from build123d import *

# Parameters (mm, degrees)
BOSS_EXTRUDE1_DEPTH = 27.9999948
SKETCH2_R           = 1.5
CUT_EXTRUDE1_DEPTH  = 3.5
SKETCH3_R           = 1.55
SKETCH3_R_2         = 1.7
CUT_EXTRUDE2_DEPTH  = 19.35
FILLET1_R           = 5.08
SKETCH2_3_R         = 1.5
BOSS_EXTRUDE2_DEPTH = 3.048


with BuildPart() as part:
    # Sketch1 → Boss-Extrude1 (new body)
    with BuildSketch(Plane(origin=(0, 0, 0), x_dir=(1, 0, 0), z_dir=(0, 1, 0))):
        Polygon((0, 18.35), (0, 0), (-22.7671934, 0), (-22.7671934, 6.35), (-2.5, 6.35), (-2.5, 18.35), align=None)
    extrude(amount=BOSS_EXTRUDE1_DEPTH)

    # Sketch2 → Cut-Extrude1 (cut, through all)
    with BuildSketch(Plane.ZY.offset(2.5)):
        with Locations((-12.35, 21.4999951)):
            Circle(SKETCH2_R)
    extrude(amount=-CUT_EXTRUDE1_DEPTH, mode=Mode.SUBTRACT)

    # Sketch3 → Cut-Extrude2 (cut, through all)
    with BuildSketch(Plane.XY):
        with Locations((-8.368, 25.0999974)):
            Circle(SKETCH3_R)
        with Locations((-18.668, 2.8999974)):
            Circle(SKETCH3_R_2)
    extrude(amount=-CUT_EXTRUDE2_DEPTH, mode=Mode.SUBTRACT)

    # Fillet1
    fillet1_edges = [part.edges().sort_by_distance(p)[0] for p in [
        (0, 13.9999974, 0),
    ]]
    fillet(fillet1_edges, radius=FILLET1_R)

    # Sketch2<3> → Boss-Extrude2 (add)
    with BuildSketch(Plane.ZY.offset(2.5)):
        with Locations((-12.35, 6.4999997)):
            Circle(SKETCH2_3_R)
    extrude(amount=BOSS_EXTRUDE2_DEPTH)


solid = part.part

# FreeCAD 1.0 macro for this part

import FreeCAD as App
import Part
import Sketcher
from FreeCAD import Vector
Q = App.Units.Quantity


def edges_at(feature, points):
    """Names of the edges that pass closest to the given points."""
    edges = feature.Shape.Edges
    near = lambda p: min(range(len(edges)), key=lambda i: edges[i].distToShape(Part.Vertex(*p))[0])
    return sorted({f"Edge{near(p) + 1}" for p in points})


def add_polygon(sketch, points):
    """Adds a closed chain of lines whose ends are joined by coincident constraints."""
    first, n = sketch.GeometryCount, len(points)
    for a, b in zip(points, points[1:] + points[:1]):
        sketch.addGeometry(Part.LineSegment(App.Vector(*a, 0), App.Vector(*b, 0)), False)
    for i in range(n):
        sketch.addConstraint(Sketcher.Constraint("Coincident", first + i, 2, first + (i + 1) % n, 1))

doc = App.newDocument("Part")
body = doc.addObject("PartDesign::Body", "Body")

# Sketch on XZ plane
sketch1 = body.newObject("Sketcher::SketchObject", "Sketch")
sketch1.AttachmentSupport = (doc.getObject("XZ_Plane"), [""])
sketch1.MapMode = "FlatFace"
add_polygon(sketch1, [(0, 0), (0, -18.4), (-2.5, -18.4), (-2.5, -6.3), (-22.8, -6.3), (-22.8, 0)])  # lines 0-5
sketch1.addConstraint([
    Sketcher.Constraint("Vertical", 0),
    Sketcher.Constraint("Horizontal", 1),
    Sketcher.Constraint("Vertical", 2),
    Sketcher.Constraint("Horizontal", 3),
    Sketcher.Constraint("Vertical", 4),
    Sketcher.Constraint("Horizontal", 5),
    Sketcher.Constraint("Coincident", 5, 2, -1, 1),
    Sketcher.Constraint("DistanceY", 2, 1, 2, 2, Q("12 mm")),
    Sketcher.Constraint("DistanceX", 1, 2, 1, 1, Q("2.5 mm")),
    Sketcher.Constraint("DistanceY", 0, 2, 0, 1, Q("18.35 mm")),
    Sketcher.Constraint("DistanceX", 3, 2, 3, 1, Q("20.267193 mm")),
])
pad1 = body.newObject("PartDesign::Pad", "Pad")
pad1.Profile = sketch1
pad1.Length = 27.999995
pad1.Reversed = True

# Sketch on YZ plane
sketch2 = body.newObject("Sketcher::SketchObject", "Sketch001")
sketch2.AttachmentSupport = (doc.getObject("YZ_Plane"), [""])
sketch2.MapMode = "FlatFace"
sketch2.AttachmentOffset = App.Placement(Vector(0, 0, -2.5), App.Rotation())
sketch2.addGeometry(Part.Circle(Vector(21.5, -12.3, 0), Vector(0, 0, 1), 1.5), False)
sketch2.addConstraint([
    Sketcher.Constraint("Diameter", 0, Q("3 mm")),
    Sketcher.Constraint("DistanceY", 0, 3, -1, 1, Q("12.35 mm")),
    Sketcher.Constraint("DistanceX", -1, 1, 0, 3, Q("21.499995 mm")),
])
pocket1 = body.newObject("PartDesign::Pocket", "Pocket")
pocket1.Profile = sketch2
pocket1.Type = "ThroughAll"
pocket1.Reversed = True

# Sketch on XY plane
sketch3 = body.newObject("Sketcher::SketchObject", "Sketch002")
sketch3.AttachmentSupport = (doc.getObject("XY_Plane"), [""])
sketch3.MapMode = "FlatFace"
sketch3.addGeometry([
    Part.Circle(Vector(-8.4, 25.1, 0), Vector(0, 0, 1), 1.6),
    Part.Circle(Vector(-18.7, 2.9, 0), Vector(0, 0, 1), 1.7),
], False)
sketch3.addConstraint([
    Sketcher.Constraint("Diameter", 0, Q("3.1 mm")),
    Sketcher.Constraint("Diameter", 1, Q("3.4 mm")),
    Sketcher.Constraint("DistanceX", 1, 3, 0, 3, Q("10.3 mm")),
    Sketcher.Constraint("DistanceY", 1, 3, 0, 3, Q("22.2 mm")),
    Sketcher.Constraint("DistanceX", 0, 3, -1, 1, Q("8.368 mm")),
    Sketcher.Constraint("DistanceY", -1, 1, 0, 3, Q("25.099997 mm")),
])
pocket2 = body.newObject("PartDesign::Pocket", "Pocket001")
pocket2.Profile = sketch3
pocket2.Type = "ThroughAll"
doc.recompute()

fillet = body.newObject("PartDesign::Fillet", "Fillet")
fillet.Base = (pocket2, edges_at(pocket2, [(0, 14, 0)]))
fillet.Radius = 5.08

# Sketch on YZ plane
sketch4 = body.newObject("Sketcher::SketchObject", "Sketch003")
sketch4.AttachmentSupport = (doc.getObject("YZ_Plane"), [""])
sketch4.MapMode = "FlatFace"
sketch4.AttachmentOffset = App.Placement(Vector(0, 0, -2.5), App.Rotation())
sketch4.addGeometry(Part.Circle(Vector(6.5, -12.3, 0), Vector(0, 0, 1), 1.5), False)
sketch4.addConstraint([
    Sketcher.Constraint("Diameter", 0, Q("3 mm")),
    Sketcher.Constraint("DistanceX", -1, 1, 0, 3, Q("6.5 mm")),
    Sketcher.Constraint("DistanceY", 0, 3, -1, 1, Q("12.35 mm")),
])
pad2 = body.newObject("PartDesign::Pad", "Pad001")
pad2.Profile = sketch4
pad2.Length = 3.048
pad2.Reversed = True

doc.recompute()
